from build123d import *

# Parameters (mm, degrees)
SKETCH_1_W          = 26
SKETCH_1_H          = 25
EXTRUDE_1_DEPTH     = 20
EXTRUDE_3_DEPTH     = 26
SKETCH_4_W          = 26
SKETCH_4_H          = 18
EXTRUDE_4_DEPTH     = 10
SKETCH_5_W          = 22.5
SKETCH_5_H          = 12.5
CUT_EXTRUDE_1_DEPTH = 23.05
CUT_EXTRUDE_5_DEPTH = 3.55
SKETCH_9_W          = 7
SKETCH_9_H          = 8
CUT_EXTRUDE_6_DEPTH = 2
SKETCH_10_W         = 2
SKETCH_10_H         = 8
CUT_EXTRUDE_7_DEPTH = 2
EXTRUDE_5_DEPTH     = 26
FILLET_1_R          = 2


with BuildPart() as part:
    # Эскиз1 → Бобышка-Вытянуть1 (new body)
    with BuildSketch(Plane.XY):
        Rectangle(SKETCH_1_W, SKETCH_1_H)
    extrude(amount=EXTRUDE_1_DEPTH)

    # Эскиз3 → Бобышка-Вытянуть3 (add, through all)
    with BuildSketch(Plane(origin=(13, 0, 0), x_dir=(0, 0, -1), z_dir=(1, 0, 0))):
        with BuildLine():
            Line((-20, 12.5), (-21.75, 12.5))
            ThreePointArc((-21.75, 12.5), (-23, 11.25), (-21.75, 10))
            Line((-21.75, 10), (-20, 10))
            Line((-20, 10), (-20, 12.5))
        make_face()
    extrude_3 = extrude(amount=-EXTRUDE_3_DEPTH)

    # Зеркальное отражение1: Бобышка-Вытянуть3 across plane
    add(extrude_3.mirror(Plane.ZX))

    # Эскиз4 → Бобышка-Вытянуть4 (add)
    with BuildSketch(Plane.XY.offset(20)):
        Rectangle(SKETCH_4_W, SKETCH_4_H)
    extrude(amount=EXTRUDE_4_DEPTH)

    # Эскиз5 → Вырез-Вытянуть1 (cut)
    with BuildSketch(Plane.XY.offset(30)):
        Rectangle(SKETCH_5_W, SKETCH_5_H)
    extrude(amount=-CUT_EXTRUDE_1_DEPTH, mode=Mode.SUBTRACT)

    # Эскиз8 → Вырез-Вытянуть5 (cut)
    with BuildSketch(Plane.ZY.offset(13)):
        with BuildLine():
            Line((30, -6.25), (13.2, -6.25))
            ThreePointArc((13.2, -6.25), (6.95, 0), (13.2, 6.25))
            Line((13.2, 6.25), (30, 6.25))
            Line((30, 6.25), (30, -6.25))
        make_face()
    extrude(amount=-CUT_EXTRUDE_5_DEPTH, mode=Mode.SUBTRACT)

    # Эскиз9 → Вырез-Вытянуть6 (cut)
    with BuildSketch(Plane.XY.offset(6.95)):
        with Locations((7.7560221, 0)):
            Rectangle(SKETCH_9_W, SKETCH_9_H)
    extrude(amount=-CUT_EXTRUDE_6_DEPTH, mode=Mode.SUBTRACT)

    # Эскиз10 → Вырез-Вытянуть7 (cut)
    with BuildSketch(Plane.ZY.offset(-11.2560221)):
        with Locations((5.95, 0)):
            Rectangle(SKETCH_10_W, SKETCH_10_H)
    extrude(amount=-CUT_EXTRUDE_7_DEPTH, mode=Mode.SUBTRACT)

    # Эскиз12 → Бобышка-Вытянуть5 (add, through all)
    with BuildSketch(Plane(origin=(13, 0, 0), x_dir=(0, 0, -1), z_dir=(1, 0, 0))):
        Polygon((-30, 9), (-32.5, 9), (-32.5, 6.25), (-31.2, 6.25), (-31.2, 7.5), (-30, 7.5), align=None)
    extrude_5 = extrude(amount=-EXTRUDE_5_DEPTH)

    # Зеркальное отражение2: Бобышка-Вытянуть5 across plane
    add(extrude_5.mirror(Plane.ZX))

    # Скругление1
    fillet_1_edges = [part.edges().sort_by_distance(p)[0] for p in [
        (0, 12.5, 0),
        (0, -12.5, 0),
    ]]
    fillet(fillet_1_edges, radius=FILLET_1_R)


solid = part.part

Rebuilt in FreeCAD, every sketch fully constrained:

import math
import FreeCAD as App
import Part
import Sketcher


def edges_at(feature, points):
    """Names of the edges that pass closest to the given points."""
    edges = feature.Shape.Edges
    near = lambda p: min(range(len(edges)), key=lambda i: edges[i].distToShape(Part.Vertex(*p))[0])
    return sorted({f"Edge{near(p) + 1}" for p in points})

doc = App.newDocument("Part")
body = doc.addObject("PartDesign::Body", "Body")

sketch1 = body.newObject("Sketcher::SketchObject", "Sketch")
sketch1.AttachmentSupport = (doc.getObject("XY_Plane"), [""])
sketch1.MapMode = "FlatFace"
sketch1.addGeometry([
    Part.LineSegment(App.Vector(-13, 12, 0), App.Vector(-13, -12, 0)),
    Part.LineSegment(App.Vector(-13, -12, 0), App.Vector(13, -12, 0)),
    Part.LineSegment(App.Vector(13, -12, 0), App.Vector(13, 12, 0)),
    Part.LineSegment(App.Vector(13, 12, 0), App.Vector(-13, 12, 0)),
], False)
sketch1.addConstraint([
    Sketcher.Constraint("Coincident", 0, 2, 1, 1),
    Sketcher.Constraint("Coincident", 1, 2, 2, 1),
    Sketcher.Constraint("Coincident", 2, 2, 3, 1),
    Sketcher.Constraint("Coincident", 3, 2, 0, 1),
    Sketcher.Constraint("Vertical", 0),
    Sketcher.Constraint("Horizontal", 1),
    Sketcher.Constraint("Vertical", 2),
    Sketcher.Constraint("Horizontal", 3),
    Sketcher.Constraint("Symmetric", 0, 2, 2, 2, -1, 1),
    Sketcher.Constraint("DistanceX", 1, 1, 1, 2, 26.0),
    Sketcher.Constraint("DistanceY", 0, 2, 0, 1, 25.0),
])
pad1 = body.newObject("PartDesign::Pad", "Pad")
pad1.Profile = sketch1
pad1.Length = 20

sketch2 = body.newObject("Sketcher::SketchObject", "Sketch001")
sketch2.AttachmentSupport = (doc.getObject("YZ_Plane"), [""])
sketch2.MapMode = "FlatFace"
sketch2.AttachmentOffset = App.Placement(App.Vector(0, 0, 13), App.Rotation())
sketch2.addGeometry([
    Part.LineSegment(App.Vector(12.5, 20, 0), App.Vector(12.5, 21.8, 0)),
    Part.ArcOfCircle(Part.Circle(App.Vector(11.2, 21.8, 0), App.Vector(0, 0, 1), 1.2), math.radians(0), math.radians(180)),
    Part.LineSegment(App.Vector(10, 21.8, 0), App.Vector(10, 20, 0)),
    Part.LineSegment(App.Vector(10, 20, 0), App.Vector(12.5, 20, 0)),
], False)
sketch2.addConstraint([
    Sketcher.Constraint("Tangent", 0, 2, 1, 1),
    Sketcher.Constraint("Tangent", 1, 2, 2, 1),
    Sketcher.Constraint("Coincident", 2, 2, 3, 1),
    Sketcher.Constraint("Coincident", 3, 2, 0, 1),
    Sketcher.Constraint("Vertical", 0),
    Sketcher.Constraint("Vertical", 2),
    Sketcher.Constraint("Horizontal", 3),
    Sketcher.Constraint("Radius", 1, 1.25),
    Sketcher.Constraint("DistanceX", -1, 1, 1, 2, 10.0),
    Sketcher.Constraint("DistanceY", -1, 1, 2, 2, 20.0),
    Sketcher.Constraint("DistanceY", 0, 1, 0, 2, 1.75),
])
pad2 = body.newObject("PartDesign::Pad", "Pad001")
pad2.Profile = sketch2
pad2.Length = 26
pad2.Reversed = True
doc.recompute()

mirrored = body.newObject("PartDesign::Mirrored", "Mirrored")
mirrored.Originals = [pad2]
mirrored.MirrorPlane = (doc.getObject("XZ_Plane"), [""])
body.Tip = mirrored

sketch3 = body.newObject("Sketcher::SketchObject", "Sketch002")
sketch3.AttachmentSupport = (doc.getObject("XY_Plane"), [""])
sketch3.MapMode = "FlatFace"
sketch3.AttachmentOffset = App.Placement(App.Vector(0, 0, 20), App.Rotation())
sketch3.addGeometry([
    Part.LineSegment(App.Vector(-13, 9, 0), App.Vector(-13, -9, 0)),
    Part.LineSegment(App.Vector(-13, -9, 0), App.Vector(13, -9, 0)),
    Part.LineSegment(App.Vector(13, -9, 0), App.Vector(13, 9, 0)),
    Part.LineSegment(App.Vector(13, 9, 0), App.Vector(-13, 9, 0)),
], False)
sketch3.addConstraint([
    Sketcher.Constraint("Coincident", 0, 2, 1, 1),
    Sketcher.Constraint("Coincident", 1, 2, 2, 1),
    Sketcher.Constraint("Coincident", 2, 2, 3, 1),
    Sketcher.Constraint("Coincident", 3, 2, 0, 1),
    Sketcher.Constraint("Vertical", 0),
    Sketcher.Constraint("Horizontal", 1),
    Sketcher.Constraint("Vertical", 2),
    Sketcher.Constraint("Horizontal", 3),
    Sketcher.Constraint("Symmetric", 0, 2, 2, 2, -1, 1),
    Sketcher.Constraint("DistanceX", 1, 1, 1, 2, 26.0),
    Sketcher.Constraint("DistanceY", 0, 2, 0, 1, 18.0),
])
pad3 = body.newObject("PartDesign::Pad", "Pad002")
pad3.Profile = sketch3
pad3.Length = 10

sketch4 = body.newObject("Sketcher::SketchObject", "Sketch003")
sketch4.AttachmentSupport = (doc.getObject("XY_Plane"), [""])
sketch4.MapMode = "FlatFace"
sketch4.AttachmentOffset = App.Placement(App.Vector(0, 0, 30), App.Rotation())
sketch4.addGeometry([
    Part.LineSegment(App.Vector(-11, 6, 0), App.Vector(-11, -6, 0)),
    Part.LineSegment(App.Vector(-11, -6, 0), App.Vector(11, -6, 0)),
    Part.LineSegment(App.Vector(11, -6, 0), App.Vector(11, 6, 0)),
    Part.LineSegment(App.Vector(11, 6, 0), App.Vector(-11, 6, 0)),
], False)
sketch4.addConstraint([
    Sketcher.Constraint("Coincident", 0, 2, 1, 1),
    Sketcher.Constraint("Coincident", 1, 2, 2, 1),
    Sketcher.Constraint("Coincident", 2, 2, 3, 1),
    Sketcher.Constraint("Coincident", 3, 2, 0, 1),
    Sketcher.Constraint("Vertical", 0),
    Sketcher.Constraint("Horizontal", 1),
    Sketcher.Constraint("Vertical", 2),
    Sketcher.Constraint("Horizontal", 3),
    Sketcher.Constraint("Symmetric", 0, 2, 2, 2, -1, 1),
    Sketcher.Constraint("DistanceX", 1, 1, 1, 2, 22.5),
    Sketcher.Constraint("DistanceY", 0, 2, 0, 1, 12.5),
])
pocket1 = body.newObject("PartDesign::Pocket", "Pocket")
pocket1.Profile = sketch4
pocket1.Length = 23.05

sketch5 = body.newObject("Sketcher::SketchObject", "Sketch004")
sketch5.AttachmentSupport = (doc.getObject("YZ_Plane"), [""])
sketch5.MapMode = "FlatFace"
sketch5.AttachmentOffset = App.Placement(App.Vector(0, 0, -13), App.Rotation())
sketch5.addGeometry([
    Part.LineSegment(App.Vector(-6, 13, 0), App.Vector(-6, 30, 0)),
    Part.LineSegment(App.Vector(-6, 30, 0), App.Vector(6, 30, 0)),
    Part.LineSegment(App.Vector(6, 30, 0), App.Vector(6, 13, 0)),
    Part.ArcOfCircle(Part.Circle(App.Vector(0, 13, 0), App.Vector(0, 0, 1), 6), math.radians(180), math.radians(360)),
], False)
sketch5.addConstraint([
    Sketcher.Constraint("Coincident", 0, 2, 1, 1),
    Sketcher.Constraint("Coincident", 1, 2, 2, 1),
    Sketcher.Constraint("Tangent", 2, 2, 3, 2),
    Sketcher.Constraint("Tangent", 3, 1, 0, 1),
    Sketcher.Constraint("Vertical", 0),
    Sketcher.Constraint("Horizontal", 1),
    Sketcher.Constraint("Vertical", 2),
    Sketcher.Constraint("PointOnObject", 3, 3, -2),
    Sketcher.Constraint("Radius", 3, 6.25),
    Sketcher.Constraint("DistanceY", 0, 1, 0, 2, 16.8),
    Sketcher.Constraint("DistanceY", -1, 1, 0, 2, 30.0),
])
pocket2 = body.newObject("PartDesign::Pocket", "Pocket001")
pocket2.Profile = sketch5
pocket2.Length = 3.55
pocket2.Reversed = True

sketch6 = body.newObject("Sketcher::SketchObject", "Sketch005")
sketch6.AttachmentSupport = (doc.getObject("XY_Plane"), [""])
sketch6.MapMode = "FlatFace"
sketch6.AttachmentOffset = App.Placement(App.Vector(0, 0, 6.95), App.Rotation())
sketch6.addGeometry([
    Part.LineSegment(App.Vector(4, 4, 0), App.Vector(4, -4, 0)),
    Part.LineSegment(App.Vector(4, -4, 0), App.Vector(11, -4, 0)),
    Part.LineSegment(App.Vector(11, -4, 0), App.Vector(11, 4, 0)),
    Part.LineSegment(App.Vector(11, 4, 0), App.Vector(4, 4, 0)),
], False)
sketch6.addConstraint([
    Sketcher.Constraint("Coincident", 0, 2, 1, 1),
    Sketcher.Constraint("Coincident", 1, 2, 2, 1),
    Sketcher.Constraint("Coincident", 2, 2, 3, 1),
    Sketcher.Constraint("Coincident", 3, 2, 0, 1),
    Sketcher.Constraint("Vertical", 0),
    Sketcher.Constraint("Horizontal", 1),
    Sketcher.Constraint("Vertical", 2),
    Sketcher.Constraint("Horizontal", 3),
    Sketcher.Constraint("DistanceX", 1, 1, 1, 2, 7.0),
    Sketcher.Constraint("DistanceY", 0, 2, 0, 1, 8.0),
    Sketcher.Constraint("DistanceY", 0, 2, -1, 1, 4.0),
    Sketcher.Constraint("DistanceX", -1, 1, 0, 2, 4.256022),
])
pocket3 = body.newObject("PartDesign::Pocket", "Pocket002")
pocket3.Profile = sketch6
pocket3.Length = 2

sketch7 = body.newObject("Sketcher::SketchObject", "Sketch006")
sketch7.AttachmentSupport = (doc.getObject("YZ_Plane"), [""])
sketch7.MapMode = "FlatFace"
sketch7.AttachmentOffset = App.Placement(App.Vector(0, 0, 11.256022), App.Rotation())
sketch7.addGeometry([
    Part.LineSegment(App.Vector(4, 5, 0), App.Vector(-4, 5, 0)),
    Part.LineSegment(App.Vector(-4, 5, 0), App.Vector(-4, 7, 0)),
    Part.LineSegment(App.Vector(-4, 7, 0), App.Vector(4, 7, 0)),
    Part.LineSegment(App.Vector(4, 7, 0), App.Vector(4, 5, 0)),
], False)
sketch7.addConstraint([
    Sketcher.Constraint("Coincident", 0, 2, 1, 1),
    Sketcher.Constraint("Coincident", 1, 2, 2, 1),
    Sketcher.Constraint("Coincident", 2, 2, 3, 1),
    Sketcher.Constraint("Coincident", 3, 2, 0, 1),
    Sketcher.Constraint("Horizontal", 0),
    Sketcher.Constraint("Vertical", 1),
    Sketcher.Constraint("Horizontal", 2),
    Sketcher.Constraint("Vertical", 3),
    Sketcher.Constraint("DistanceX", 0, 2, 0, 1, 8.0),
    Sketcher.Constraint("DistanceY", 1, 1, 1, 2, 2.0),
    Sketcher.Constraint("DistanceX", 0, 2, -1, 1, 4.0),
    Sketcher.Constraint("DistanceY", -1, 1, 0, 2, 4.95),
])
pocket4 = body.newObject("PartDesign::Pocket", "Pocket003")
pocket4.Profile = sketch7
pocket4.Length = 2
pocket4.Reversed = True

sketch8 = body.newObject("Sketcher::SketchObject", "Sketch007")
sketch8.AttachmentSupport = (doc.getObject("YZ_Plane"), [""])
sketch8.MapMode = "FlatFace"
sketch8.AttachmentOffset = App.Placement(App.Vector(0, 0, 13), App.Rotation())
sketch8.addGeometry([
    Part.LineSegment(App.Vector(9, 30, 0), App.Vector(9, 32.5, 0)),
    Part.LineSegment(App.Vector(9, 32.5, 0), App.Vector(6.2, 32.5, 0)),
    Part.LineSegment(App.Vector(6.2, 32.5, 0), App.Vector(6.2, 31.2, 0)),
    Part.LineSegment(App.Vector(6.2, 31.2, 0), App.Vector(7.5, 31.2, 0)),
    Part.LineSegment(App.Vector(7.5, 31.2, 0), App.Vector(7.5, 30, 0)),
    Part.LineSegment(App.Vector(7.5, 30, 0), App.Vector(9, 30, 0)),
], False)
sketch8.addConstraint([
    Sketcher.Constraint("Coincident", 0, 2, 1, 1),
    Sketcher.Constraint("Coincident", 1, 2, 2, 1),
    Sketcher.Constraint("Coincident", 2, 2, 3, 1),
    Sketcher.Constraint("Coincident", 3, 2, 4, 1),
    Sketcher.Constraint("Coincident", 4, 2, 5, 1),
    Sketcher.Constraint("Coincident", 5, 2, 0, 1),
    Sketcher.Constraint("Vertical", 0),
    Sketcher.Constraint("Horizontal", 1),
    Sketcher.Constraint("Vertical", 2),
    Sketcher.Constraint("Horizontal", 3),
    Sketcher.Constraint("Vertical", 4),
    Sketcher.Constraint("Horizontal", 5),
    Sketcher.Constraint("DistanceX", 5, 1, 5, 2, 1.5),
    Sketcher.Constraint("DistanceY", 0, 1, 0, 2, 2.5),
    Sketcher.Constraint("DistanceY", 2, 2, 2, 1, 1.3),
    Sketcher.Constraint("DistanceX", -1, 1, 0, 2, 9.0),
    Sketcher.Constraint("DistanceY", -1, 1, 4, 2, 30.0),
    Sketcher.Constraint("DistanceX", 1, 2, 1, 1, 2.75),
])
pad4 = body.newObject("PartDesign::Pad", "Pad003")
pad4.Profile = sketch8
pad4.Length = 26
pad4.Reversed = True
doc.recompute()

mirrored2 = body.newObject("PartDesign::Mirrored", "Mirrored001")
mirrored2.Originals = [pad4]
mirrored2.MirrorPlane = (doc.getObject("XZ_Plane"), [""])
body.Tip = mirrored2
doc.recompute()

fillet = body.newObject("PartDesign::Fillet", "Fillet")
fillet.Base = (mirrored2, edges_at(mirrored2, [(0, 12.5, 0), (0, -12.5, 0)]))
fillet.Radius = 2

doc.recompute()
